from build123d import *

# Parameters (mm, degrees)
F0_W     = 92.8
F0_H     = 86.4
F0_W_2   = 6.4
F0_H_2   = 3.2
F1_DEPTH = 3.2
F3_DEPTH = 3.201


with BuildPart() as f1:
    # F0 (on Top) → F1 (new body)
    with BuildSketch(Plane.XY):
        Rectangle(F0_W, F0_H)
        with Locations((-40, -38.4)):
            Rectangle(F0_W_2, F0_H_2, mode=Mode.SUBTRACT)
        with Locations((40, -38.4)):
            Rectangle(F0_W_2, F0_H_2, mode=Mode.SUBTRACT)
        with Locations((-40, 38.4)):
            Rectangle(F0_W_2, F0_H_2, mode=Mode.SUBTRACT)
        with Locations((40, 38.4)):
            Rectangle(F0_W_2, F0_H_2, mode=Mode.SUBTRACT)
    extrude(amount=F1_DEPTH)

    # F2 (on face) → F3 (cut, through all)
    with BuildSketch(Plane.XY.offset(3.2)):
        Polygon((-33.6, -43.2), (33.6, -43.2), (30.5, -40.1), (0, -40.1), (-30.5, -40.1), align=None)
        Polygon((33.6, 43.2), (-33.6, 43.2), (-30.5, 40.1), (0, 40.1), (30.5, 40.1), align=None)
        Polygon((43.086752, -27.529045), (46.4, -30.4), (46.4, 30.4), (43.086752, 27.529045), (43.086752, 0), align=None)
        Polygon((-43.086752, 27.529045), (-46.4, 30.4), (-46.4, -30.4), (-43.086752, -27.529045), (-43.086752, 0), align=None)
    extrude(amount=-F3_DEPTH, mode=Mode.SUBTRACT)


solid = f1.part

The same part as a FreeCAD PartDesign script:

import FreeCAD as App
import Part
import Sketcher

V = App.Vector
Q = App.Units.Quantity

doc = App.newDocument("Part")
body = doc.addObject("PartDesign::Body", "Body")

# Sketch on XY plane
sketch1 = body.newObject("Sketcher::SketchObject", "Sketch")
sketch1.AttachmentSupport = (doc.getObject("XY_Plane"), [""])
sketch1.MapMode = "FlatFace"
sketch1.addGeometry([
    Part.LineSegment(V(-46.4, 43.2, 0), V(-46.4, -43.2, 0)),  # 0
    Part.LineSegment(V(-46.4, -43.2, 0), V(46.4, -43.2, 0)),  # 1
    Part.LineSegment(V(46.4, -43.2, 0), V(46.4, 43.2, 0)),  # 2
    Part.LineSegment(V(46.4, 43.2, 0), V(-46.4, 43.2, 0)),  # 3
    Part.LineSegment(V(-36.8, -40, 0), V(-43.2, -40, 0)),  # 4
    Part.LineSegment(V(-43.2, -40, 0), V(-43.2, -36.8, 0)),  # 5
    Part.LineSegment(V(-43.2, -36.8, 0), V(-36.8, -36.8, 0)),  # 6
    Part.LineSegment(V(-36.8, -36.8, 0), V(-36.8, -40, 0)),  # 7
    Part.LineSegment(V(43.2, -40, 0), V(36.8, -40, 0)),  # 8
    Part.LineSegment(V(36.8, -40, 0), V(36.8, -36.8, 0)),  # 9
    Part.LineSegment(V(36.8, -36.8, 0), V(43.2, -36.8, 0)),  # 10
    Part.LineSegment(V(43.2, -36.8, 0), V(43.2, -40, 0)),  # 11
    Part.LineSegment(V(-36.8, 36.8, 0), V(-43.2, 36.8, 0)),  # 12
    Part.LineSegment(V(-43.2, 36.8, 0), V(-43.2, 40, 0)),  # 13
    Part.LineSegment(V(-43.2, 40, 0), V(-36.8, 40, 0)),  # 14
    Part.LineSegment(V(-36.8, 40, 0), V(-36.8, 36.8, 0)),  # 15
    Part.LineSegment(V(43.2, 36.8, 0), V(36.8, 36.8, 0)),  # 16
    Part.LineSegment(V(36.8, 36.8, 0), V(36.8, 40, 0)),  # 17
    Part.LineSegment(V(36.8, 40, 0), V(43.2, 40, 0)),  # 18
    Part.LineSegment(V(43.2, 40, 0), V(43.2, 36.8, 0)),  # 19
], False)
sketch1.addConstraint([
    Sketcher.Constraint("Coincident", 0, 2, 1, 1),
    Sketcher.Constraint("Coincident", 1, 2, 2, 1),
    Sketcher.Constraint("Coincident", 2, 2, 3, 1),
    Sketcher.Constraint("Coincident", 3, 2, 0, 1),
    Sketcher.Constraint("Coincident", 4, 2, 5, 1),
    Sketcher.Constraint("Coincident", 5, 2, 6, 1),
    Sketcher.Constraint("Coincident", 6, 2, 7, 1),
    Sketcher.Constraint("Coincident", 7, 2, 4, 1),
    Sketcher.Constraint("Coincident", 8, 2, 9, 1),
    Sketcher.Constraint("Coincident", 9, 2, 10, 1),
    Sketcher.Constraint("Coincident", 10, 2, 11, 1),
    Sketcher.Constraint("Coincident", 11, 2, 8, 1),
    Sketcher.Constraint("Coincident", 12, 2, 13, 1),
    Sketcher.Constraint("Coincident", 13, 2, 14, 1),
    Sketcher.Constraint("Coincident", 14, 2, 15, 1),
    Sketcher.Constraint("Coincident", 15, 2, 12, 1),
    Sketcher.Constraint("Coincident", 16, 2, 17, 1),
    Sketcher.Constraint("Coincident", 17, 2, 18, 1),
    Sketcher.Constraint("Coincident", 18, 2, 19, 1),
    Sketcher.Constraint("Coincident", 19, 2, 16, 1),
    Sketcher.Constraint("Vertical", 0),
    Sketcher.Constraint("Horizontal", 1),
    Sketcher.Constraint("Vertical", 2),
    Sketcher.Constraint("Horizontal", 3),
    Sketcher.Constraint("Horizontal", 4),
    Sketcher.Constraint("Vertical", 5),
    Sketcher.Constraint("Horizontal", 6),
    Sketcher.Constraint("Vertical", 7),
    Sketcher.Constraint("Horizontal", 8),
    Sketcher.Constraint("Vertical", 9),
    Sketcher.Constraint("Horizontal", 10),
    Sketcher.Constraint("Vertical", 11),
    Sketcher.Constraint("Horizontal", 12),
    Sketcher.Constraint("Vertical", 13),
    Sketcher.Constraint("Horizontal", 14),
    Sketcher.Constraint("Vertical", 15),
    Sketcher.Constraint("Horizontal", 16),
    Sketcher.Constraint("Vertical", 17),
    Sketcher.Constraint("Horizontal", 18),
    Sketcher.Constraint("Vertical", 19),
    Sketcher.Constraint("Symmetric", 0, 2, 2, 2, -1, 1),
    Sketcher.Constraint("Symmetric", 10, 2, 12, 2, -1, 1),
    Sketcher.Constraint("Symmetric", 8, 2, 14, 2, -1, 1),
    Sketcher.Constraint("Symmetric", 6, 2, 16, 2, -1, 1),
    Sketcher.Constraint("Symmetric", 4, 2, 18, 2, -1, 1),
    Sketcher.Constraint("Symmetric", 7, 2, 8, 2, -2),
    Sketcher.Constraint("Symmetric", 5, 2, 10, 2, -2),
    Sketcher.Constraint("DistanceX", 1, 1, 1, 2, Q("92.8 mm")),
    Sketcher.Constraint("DistanceX", 4, 2, 4, 1, Q("6.4 mm")),
    Sketcher.Constraint("DistanceY", 0, 2, 0, 1, Q("86.4 mm")),
    Sketcher.Constraint("DistanceY", 5, 1, 5, 2, Q("3.2 mm")),
    Sketcher.Constraint("DistanceY", 4, 2, -1, 1, Q("40 mm")),
    Sketcher.Constraint("DistanceX", 4, 2, 8, 2, Q("80 mm")),
])
pad1 = body.newObject("PartDesign::Pad", "Pad")
pad1.Profile = sketch1
pad1.Length = 3.2

# Sketch on XY plane
sketch2 = body.newObject("Sketcher::SketchObject", "Sketch001")
sketch2.AttachmentSupport = (doc.getObject("XY_Plane"), [""])
sketch2.MapMode = "FlatFace"
sketch2.AttachmentOffset = App.Placement(V(0, 0, 3.2), App.Rotation())
sketch2.addGeometry([
    Part.LineSegment(V(-33.6, -43.2, 0), V(33.6, -43.2, 0)),  # 0
    Part.LineSegment(V(33.6, -43.2, 0), V(30.5, -40.1, 0)),  # 1
    Part.LineSegment(V(30.5, -40.1, 0), V(-30.5, -40.1, 0)),  # 2
    Part.LineSegment(V(-30.5, -40.1, 0), V(-33.6, -43.2, 0)),  # 3
    Part.LineSegment(V(33.6, 43.2, 0), V(-33.6, 43.2, 0)),  # 4
    Part.LineSegment(V(-33.6, 43.2, 0), V(-30.5, 40.1, 0)),  # 5
    Part.LineSegment(V(-30.5, 40.1, 0), V(30.5, 40.1, 0)),  # 6
    Part.LineSegment(V(30.5, 40.1, 0), V(33.6, 43.2, 0)),  # 7
    Part.LineSegment(V(43.1, -27.5, 0), V(46.4, -30.4, 0)),  # 8
    Part.LineSegment(V(46.4, -30.4, 0), V(46.4, 30.4, 0)),  # 9
    Part.LineSegment(V(46.4, 30.4, 0), V(43.1, 27.5, 0)),  # 10
    Part.LineSegment(V(43.1, 27.5, 0), V(43.1, -27.5, 0)),  # 11
    Part.LineSegment(V(-43.1, 27.5, 0), V(-46.4, 30.4, 0)),  # 12
    Part.LineSegment(V(-46.4, 30.4, 0), V(-46.4, -30.4, 0)),  # 13
    Part.LineSegment(V(-46.4, -30.4, 0), V(-43.1, -27.5, 0)),  # 14
    Part.LineSegment(V(-43.1, -27.5, 0), V(-43.1, 27.5, 0)),  # 15
], False)
sketch2.addConstraint([
    Sketcher.Constraint("Coincident", 0, 2, 1, 1),
    Sketcher.Constraint("Coincident", 1, 2, 2, 1),
    Sketcher.Constraint("Coincident", 2, 2, 3, 1),
    Sketcher.Constraint("Coincident", 3, 2, 0, 1),
    Sketcher.Constraint("Coincident", 4, 2, 5, 1),
    Sketcher.Constraint("Coincident", 5, 2, 6, 1),
    Sketcher.Constraint("Coincident", 6, 2, 7, 1),
    Sketcher.Constraint("Coincident", 7, 2, 4, 1),
    Sketcher.Constraint("Coincident", 8, 2, 9, 1),
    Sketcher.Constraint("Coincident", 9, 2, 10, 1),
    Sketcher.Constraint("Coincident", 10, 2, 11, 1),
    Sketcher.Constraint("Coincident", 11, 2, 8, 1),
    Sketcher.Constraint("Coincident", 12, 2, 13, 1),
    Sketcher.Constraint("Coincident", 13, 2, 14, 1),
    Sketcher.Constraint("Coincident", 14, 2, 15, 1),
    Sketcher.Constraint("Coincident", 15, 2, 12, 1),
    Sketcher.Constraint("Horizontal", 0),
    Sketcher.Constraint("Horizontal", 2),
    Sketcher.Constraint("Horizontal", 4),
    Sketcher.Constraint("Horizontal", 6),
    Sketcher.Constraint("Vertical", 9),
    Sketcher.Constraint("Vertical", 11),
    Sketcher.Constraint("Vertical", 13),
    Sketcher.Constraint("Vertical", 15),
    Sketcher.Constraint("Symmetric", 0, 2, 4, 2, -1, 1),
    Sketcher.Constraint("Symmetric", 1, 2, 5, 2, -1, 1),
    Sketcher.Constraint("Symmetric", 8, 2, 12, 2, -1, 1),
    Sketcher.Constraint("Symmetric", 10, 2, 14, 2, -1, 1),
    Sketcher.Constraint("Perpendicular", 1, 3),
    Sketcher.Constraint("Perpendicular", 5, 7),
    Sketcher.Constraint("Parallel", 8, 12),
    Sketcher.Constraint("Parallel", 10, 14),
    Sketcher.Constraint("Horizontal", 9, 2, 12, 2),
    Sketcher.Constraint("Horizontal", 11, 2, 14, 2),
    Sketcher.Constraint("Vertical", 3, 2, 4, 2),
    Sketcher.Constraint("Vertical", 2, 2, 5, 2),
    Sketcher.Constraint("Vertical", 1, 2, 6, 2),
    Sketcher.Constraint("Equal", 7, 8),
    Sketcher.Constraint("DistanceX", 2, 2, 2, 1, Q("61 mm")),
    Sketcher.Constraint("DistanceX", 0, 1, 0, 2, Q("67.2 mm")),
    Sketcher.Constraint("DistanceY", 9, 1, 9, 2, Q("60.8 mm")),
    Sketcher.Constraint("DistanceY", 0, 2, -1, 1, Q("43.2 mm")),
    Sketcher.Constraint("DistanceX", -1, 1, 8, 2, Q("46.4 mm")),
    Sketcher.Constraint("DistanceY", 11, 2, 11, 1, Q("55.05809 mm")),
])
pocket1 = body.newObject("PartDesign::Pocket", "Pocket")
pocket1.Profile = sketch2
pocket1.Type = "ThroughAll"

doc.recompute()
